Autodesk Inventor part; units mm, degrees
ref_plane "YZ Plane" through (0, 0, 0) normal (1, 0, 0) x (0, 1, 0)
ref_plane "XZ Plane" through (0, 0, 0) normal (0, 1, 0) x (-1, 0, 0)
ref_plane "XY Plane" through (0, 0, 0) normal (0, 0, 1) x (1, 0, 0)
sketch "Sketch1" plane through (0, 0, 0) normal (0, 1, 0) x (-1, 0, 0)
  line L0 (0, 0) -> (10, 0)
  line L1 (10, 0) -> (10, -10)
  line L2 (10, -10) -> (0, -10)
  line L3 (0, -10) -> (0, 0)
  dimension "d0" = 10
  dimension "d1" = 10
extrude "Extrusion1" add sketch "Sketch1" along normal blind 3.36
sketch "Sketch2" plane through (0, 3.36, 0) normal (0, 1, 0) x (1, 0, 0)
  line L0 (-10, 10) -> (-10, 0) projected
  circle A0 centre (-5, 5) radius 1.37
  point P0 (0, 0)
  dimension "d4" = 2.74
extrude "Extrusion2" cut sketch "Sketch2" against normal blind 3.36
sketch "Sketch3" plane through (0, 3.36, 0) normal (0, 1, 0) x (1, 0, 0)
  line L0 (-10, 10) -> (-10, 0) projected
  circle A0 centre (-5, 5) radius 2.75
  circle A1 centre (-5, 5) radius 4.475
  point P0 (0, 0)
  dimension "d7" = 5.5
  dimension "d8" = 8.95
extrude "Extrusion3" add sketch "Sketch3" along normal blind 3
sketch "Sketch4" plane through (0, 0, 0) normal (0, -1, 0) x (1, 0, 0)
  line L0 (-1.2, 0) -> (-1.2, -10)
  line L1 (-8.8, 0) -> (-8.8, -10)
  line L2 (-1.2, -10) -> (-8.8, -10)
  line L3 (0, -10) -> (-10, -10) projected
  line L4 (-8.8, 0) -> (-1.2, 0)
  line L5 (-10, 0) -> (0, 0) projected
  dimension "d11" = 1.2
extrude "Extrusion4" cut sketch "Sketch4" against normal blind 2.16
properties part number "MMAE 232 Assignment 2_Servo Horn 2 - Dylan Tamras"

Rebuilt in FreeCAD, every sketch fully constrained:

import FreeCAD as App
import Part
import Sketcher

V = App.Vector


def add_polygon(sketch, points):
    """Adds a closed chain of lines whose ends are joined by coincident constraints."""
    first, n = sketch.GeometryCount, len(points)
    for a, b in zip(points, points[1:] + points[:1]):
        sketch.addGeometry(Part.LineSegment(App.Vector(*a, 0), App.Vector(*b, 0)), False)
    for i in range(n):
        sketch.addConstraint(Sketcher.Constraint("Coincident", first + i, 2, first + (i + 1) % n, 1))

doc = App.newDocument("Part")
body = doc.addObject("PartDesign::Body", "Body")

# Sketch on XZ plane
sketch1 = body.newObject("Sketcher::SketchObject", "Sketch")
sketch1.AttachmentSupport = (doc.getObject("XZ_Plane"), [""])
sketch1.MapMode = "FlatFace"
add_polygon(sketch1, [(-10, 0), (0, 0), (0, -10), (-10, -10)])  # lines 0-3
sketch1.addConstraint([
    Sketcher.Constraint("Horizontal", 0),
    Sketcher.Constraint("Vertical", 1),
    Sketcher.Constraint("Horizontal", 2),
    Sketcher.Constraint("Vertical", 3),
    Sketcher.Constraint("Coincident", 0, 2, -1, 1),
    Sketcher.Constraint("Equal", 2, 1),
    Sketcher.Constraint("DistanceX", 0, 1, 0, 2, 10.0),
])
pad1 = body.newObject("PartDesign::Pad", "Pad")
pad1.Profile = sketch1
pad1.Length = 3.36
pad1.Reversed = True

# Sketch on XZ plane
sketch2 = body.newObject("Sketcher::SketchObject", "Sketch001")
sketch2.AttachmentSupport = (doc.getObject("XZ_Plane"), [""])
sketch2.MapMode = "FlatFace"
sketch2.AttachmentOffset = App.Placement(V(0, 0, -3.36), App.Rotation())
sketch2.addGeometry(Part.Circle(V(-5, -5, 0), V(0, 0, 1), 1.37), False)
sketch2.addConstraint([
    Sketcher.Constraint("Diameter", 0, 2.74),
    Sketcher.Constraint("DistanceX", 0, 3, -1, 1, 5.0),
    Sketcher.Constraint("DistanceY", 0, 3, -1, 1, 5.0),
])
pocket1 = body.newObject("PartDesign::Pocket", "Pocket")
pocket1.Profile = sketch2
pocket1.Length = 3.36
pocket1.Reversed = True

# Sketch on XZ plane
sketch3 = body.newObject("Sketcher::SketchObject", "Sketch002")
sketch3.AttachmentSupport = (doc.getObject("XZ_Plane"), [""])
sketch3.MapMode = "FlatFace"
sketch3.AttachmentOffset = App.Placement(V(0, 0, -3.36), App.Rotation())
sketch3.addGeometry([
    Part.Circle(V(-5, -5, 0), V(0, 0, 1), 4.475),
    Part.Circle(V(-5, -5, 0), V(0, 0, 1), 2.75),
], False)
sketch3.addConstraint([
    Sketcher.Constraint("Coincident", 1, 3, 0, 3),
    Sketcher.Constraint("Diameter", 1, 5.5),
    Sketcher.Constraint("Diameter", 0, 8.95),
    Sketcher.Constraint("DistanceX", 0, 3, -1, 1, 5.0),
    Sketcher.Constraint("DistanceY", 0, 3, -1, 1, 5.0),
])
pad2 = body.newObject("PartDesign::Pad", "Pad001")
pad2.Profile = sketch3
pad2.Length = 3
pad2.Reversed = True

# Sketch on XZ plane
sketch4 = body.newObject("Sketcher::SketchObject", "Sketch003")
sketch4.AttachmentSupport = (doc.getObject("XZ_Plane"), [""])
sketch4.MapMode = "FlatFace"
add_polygon(sketch4, [(-1.2, -10), (-1.2, 0), (-8.8, 0), (-8.8, -10)])  # lines 0-3
sketch4.addConstraint([
    Sketcher.Constraint("Vertical", 0),
    Sketcher.Constraint("Horizontal", 1),
    Sketcher.Constraint("Vertical", 2),
    Sketcher.Constraint("Horizontal", 3),
    Sketcher.Constraint("PointOnObject", 0, 2, -1),
    Sketcher.Constraint("DistanceX", 0, 2, -1, 1, 1.2),
    Sketcher.Constraint("DistanceY", 0, 1, 0, 2, 10.0),
    Sketcher.Constraint("DistanceX", 1, 2, 1, 1, 7.6),
])
pocket2 = body.newObject("PartDesign::Pocket", "Pocket001")
pocket2.Profile = sketch4
pocket2.Length = 2.16

doc.recompute()
